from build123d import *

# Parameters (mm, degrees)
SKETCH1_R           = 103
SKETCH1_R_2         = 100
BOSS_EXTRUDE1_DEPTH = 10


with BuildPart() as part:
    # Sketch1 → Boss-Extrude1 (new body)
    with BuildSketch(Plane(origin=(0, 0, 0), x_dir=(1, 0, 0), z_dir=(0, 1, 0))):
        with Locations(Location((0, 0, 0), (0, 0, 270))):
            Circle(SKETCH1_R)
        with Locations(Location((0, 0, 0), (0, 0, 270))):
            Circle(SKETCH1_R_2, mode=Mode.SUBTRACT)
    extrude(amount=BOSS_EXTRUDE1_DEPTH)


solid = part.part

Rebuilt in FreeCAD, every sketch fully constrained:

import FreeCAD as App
import Part
import Sketcher

V = App.Vector

doc = App.newDocument("Part")
body = doc.addObject("PartDesign::Body", "Body")

sketch1 = body.newObject("Sketcher::SketchObject", "Sketch")
sketch1.AttachmentSupport = (doc.getObject("XZ_Plane"), [""])
sketch1.MapMode = "FlatFace"
sketch1.addGeometry([
    Part.Circle(V(0, 0, 0), V(0, 0, 1), 103),
    Part.Circle(V(0, 0, 0), V(0, 0, 1), 100),
], False)
sketch1.addConstraint([
    Sketcher.Constraint("Coincident", 0, 3, -1, 1),
    Sketcher.Constraint("Coincident", 1, 3, -1, 1),
    Sketcher.Constraint("Diameter", 0, 206.0),
    Sketcher.Constraint("Diameter", 1, 200.0),
])
pad1 = body.newObject("PartDesign::Pad", "Pad")
pad1.Profile = sketch1
pad1.Length = 10
pad1.Reversed = True

doc.recompute()
